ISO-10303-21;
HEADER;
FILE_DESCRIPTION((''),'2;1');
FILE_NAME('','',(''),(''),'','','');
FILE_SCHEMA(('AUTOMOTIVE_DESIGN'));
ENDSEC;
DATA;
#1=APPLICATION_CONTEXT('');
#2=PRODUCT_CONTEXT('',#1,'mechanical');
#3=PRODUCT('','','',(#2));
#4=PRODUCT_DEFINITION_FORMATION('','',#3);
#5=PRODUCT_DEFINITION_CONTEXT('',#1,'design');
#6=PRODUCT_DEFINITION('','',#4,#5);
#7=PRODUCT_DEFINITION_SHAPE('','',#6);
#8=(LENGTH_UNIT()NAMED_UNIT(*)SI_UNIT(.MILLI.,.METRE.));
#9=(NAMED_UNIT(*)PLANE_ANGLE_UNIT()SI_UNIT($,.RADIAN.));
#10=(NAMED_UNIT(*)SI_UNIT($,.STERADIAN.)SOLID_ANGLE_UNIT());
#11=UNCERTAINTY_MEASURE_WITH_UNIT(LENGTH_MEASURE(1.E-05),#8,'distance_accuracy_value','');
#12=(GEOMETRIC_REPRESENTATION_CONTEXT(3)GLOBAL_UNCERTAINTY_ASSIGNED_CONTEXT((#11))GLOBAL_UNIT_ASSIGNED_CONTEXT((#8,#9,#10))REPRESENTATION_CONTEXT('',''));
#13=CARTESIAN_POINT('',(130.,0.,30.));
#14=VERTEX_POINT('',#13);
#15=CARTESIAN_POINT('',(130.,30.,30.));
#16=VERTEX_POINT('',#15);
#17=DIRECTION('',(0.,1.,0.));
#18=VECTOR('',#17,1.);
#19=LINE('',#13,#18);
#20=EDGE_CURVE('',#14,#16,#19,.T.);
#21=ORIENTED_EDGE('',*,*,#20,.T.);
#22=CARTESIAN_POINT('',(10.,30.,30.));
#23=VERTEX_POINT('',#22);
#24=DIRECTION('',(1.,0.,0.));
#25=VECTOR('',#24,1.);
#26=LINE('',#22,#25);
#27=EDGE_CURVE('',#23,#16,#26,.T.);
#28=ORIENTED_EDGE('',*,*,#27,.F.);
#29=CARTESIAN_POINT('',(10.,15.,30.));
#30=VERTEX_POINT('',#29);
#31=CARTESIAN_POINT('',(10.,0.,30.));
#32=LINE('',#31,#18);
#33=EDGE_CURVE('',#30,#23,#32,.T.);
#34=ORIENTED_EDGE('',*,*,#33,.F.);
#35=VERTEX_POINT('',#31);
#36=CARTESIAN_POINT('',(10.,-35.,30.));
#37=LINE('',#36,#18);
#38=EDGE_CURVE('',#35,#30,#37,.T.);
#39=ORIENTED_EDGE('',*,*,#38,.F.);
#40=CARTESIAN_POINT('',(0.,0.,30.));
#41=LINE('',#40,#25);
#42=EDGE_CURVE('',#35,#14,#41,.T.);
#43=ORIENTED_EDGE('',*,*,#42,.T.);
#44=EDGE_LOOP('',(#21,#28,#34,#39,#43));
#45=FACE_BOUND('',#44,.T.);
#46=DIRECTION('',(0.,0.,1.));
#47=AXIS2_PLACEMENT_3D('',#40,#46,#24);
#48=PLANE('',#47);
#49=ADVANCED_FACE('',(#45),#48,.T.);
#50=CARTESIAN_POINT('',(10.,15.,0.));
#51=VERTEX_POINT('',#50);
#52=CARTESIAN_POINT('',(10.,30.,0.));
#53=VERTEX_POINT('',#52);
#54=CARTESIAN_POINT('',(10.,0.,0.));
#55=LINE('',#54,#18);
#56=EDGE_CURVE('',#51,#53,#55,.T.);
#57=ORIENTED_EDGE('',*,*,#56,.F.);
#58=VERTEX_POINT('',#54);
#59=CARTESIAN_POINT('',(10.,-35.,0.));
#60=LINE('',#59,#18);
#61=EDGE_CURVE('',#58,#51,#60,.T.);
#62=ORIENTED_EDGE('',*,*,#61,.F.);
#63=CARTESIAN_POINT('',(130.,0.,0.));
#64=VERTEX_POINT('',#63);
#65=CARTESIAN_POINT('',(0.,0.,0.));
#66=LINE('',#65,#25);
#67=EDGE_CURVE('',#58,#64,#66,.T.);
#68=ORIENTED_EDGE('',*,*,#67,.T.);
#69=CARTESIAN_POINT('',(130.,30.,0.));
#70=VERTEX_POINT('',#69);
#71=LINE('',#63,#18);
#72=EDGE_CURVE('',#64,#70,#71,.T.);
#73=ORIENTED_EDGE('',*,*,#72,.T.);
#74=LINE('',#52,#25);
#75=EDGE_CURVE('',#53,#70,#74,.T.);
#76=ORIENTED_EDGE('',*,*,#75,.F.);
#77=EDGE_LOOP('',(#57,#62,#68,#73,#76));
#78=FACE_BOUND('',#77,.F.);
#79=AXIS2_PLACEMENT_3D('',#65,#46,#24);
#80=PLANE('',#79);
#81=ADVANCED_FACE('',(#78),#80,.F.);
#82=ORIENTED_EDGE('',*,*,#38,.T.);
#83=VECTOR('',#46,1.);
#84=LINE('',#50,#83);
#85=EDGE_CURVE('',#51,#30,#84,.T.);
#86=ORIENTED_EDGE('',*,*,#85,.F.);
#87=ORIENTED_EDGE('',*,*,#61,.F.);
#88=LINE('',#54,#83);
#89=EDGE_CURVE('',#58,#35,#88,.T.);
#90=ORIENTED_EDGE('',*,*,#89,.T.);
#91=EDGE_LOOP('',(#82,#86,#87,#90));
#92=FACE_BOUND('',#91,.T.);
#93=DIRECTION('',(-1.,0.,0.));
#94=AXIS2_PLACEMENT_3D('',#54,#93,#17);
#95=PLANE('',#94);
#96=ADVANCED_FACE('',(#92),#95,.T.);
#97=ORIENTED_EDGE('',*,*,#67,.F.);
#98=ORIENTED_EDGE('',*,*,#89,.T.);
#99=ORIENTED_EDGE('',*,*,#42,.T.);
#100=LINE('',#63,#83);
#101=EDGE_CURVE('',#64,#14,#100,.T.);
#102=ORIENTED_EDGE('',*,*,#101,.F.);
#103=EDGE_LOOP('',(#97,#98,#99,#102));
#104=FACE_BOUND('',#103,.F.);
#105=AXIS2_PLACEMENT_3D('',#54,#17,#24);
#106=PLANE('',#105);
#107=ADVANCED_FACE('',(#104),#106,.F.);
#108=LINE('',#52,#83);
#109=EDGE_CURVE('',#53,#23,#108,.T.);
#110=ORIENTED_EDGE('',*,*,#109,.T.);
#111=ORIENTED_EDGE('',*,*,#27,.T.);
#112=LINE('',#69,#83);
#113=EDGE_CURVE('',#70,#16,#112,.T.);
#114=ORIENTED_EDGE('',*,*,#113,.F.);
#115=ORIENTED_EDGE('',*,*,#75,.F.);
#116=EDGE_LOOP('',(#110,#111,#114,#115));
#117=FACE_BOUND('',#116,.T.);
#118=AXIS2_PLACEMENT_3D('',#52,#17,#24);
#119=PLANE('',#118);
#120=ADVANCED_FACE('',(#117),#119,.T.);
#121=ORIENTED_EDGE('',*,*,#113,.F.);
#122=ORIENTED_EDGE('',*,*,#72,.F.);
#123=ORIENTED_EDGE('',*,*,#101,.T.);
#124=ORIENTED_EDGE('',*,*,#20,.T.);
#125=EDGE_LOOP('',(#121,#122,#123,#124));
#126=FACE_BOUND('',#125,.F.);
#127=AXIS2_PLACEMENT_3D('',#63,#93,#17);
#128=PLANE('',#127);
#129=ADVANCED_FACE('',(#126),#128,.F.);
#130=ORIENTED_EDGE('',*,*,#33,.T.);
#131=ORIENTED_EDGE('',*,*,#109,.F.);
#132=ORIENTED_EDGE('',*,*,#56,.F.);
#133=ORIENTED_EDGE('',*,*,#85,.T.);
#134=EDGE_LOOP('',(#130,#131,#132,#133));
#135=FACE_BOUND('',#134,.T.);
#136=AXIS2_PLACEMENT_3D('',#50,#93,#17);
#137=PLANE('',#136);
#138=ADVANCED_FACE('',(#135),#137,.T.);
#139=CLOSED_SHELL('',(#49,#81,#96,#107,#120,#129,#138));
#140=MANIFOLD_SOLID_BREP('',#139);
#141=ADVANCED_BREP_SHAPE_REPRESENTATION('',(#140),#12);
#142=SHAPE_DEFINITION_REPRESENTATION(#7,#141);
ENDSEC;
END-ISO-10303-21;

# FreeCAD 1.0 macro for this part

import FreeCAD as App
import Part
import Sketcher
Q = App.Units.Quantity


def add_polygon(sketch, points):
    """Adds a closed chain of lines whose ends are joined by coincident constraints."""
    first, n = sketch.GeometryCount, len(points)
    for a, b in zip(points, points[1:] + points[:1]):
        sketch.addGeometry(Part.LineSegment(App.Vector(*a, 0), App.Vector(*b, 0)), False)
    for i in range(n):
        sketch.addConstraint(Sketcher.Constraint("Coincident", first + i, 2, first + (i + 1) % n, 1))

doc = App.newDocument("Part")
params = doc.addObject("Spreadsheet::Sheet", "Params")
for row, (alias, value) in enumerate([
    ("sketch1_height", "30 mm"),
    ("sketch1_width", "120 mm"),
    ("pad1_length", "30 mm"),
], start=1):
    params.set(f"A{row}", alias)
    params.set(f"B{row}", "=" + value)
    params.setAlias(f"B{row}", alias)

body = doc.addObject("PartDesign::Body", "Body")

# Sketch on XY plane
sketch1 = body.newObject("Sketcher::SketchObject", "Sketch")
sketch1.AttachmentSupport = (doc.getObject("XY_Plane"), [""])
sketch1.MapMode = "FlatFace"
add_polygon(sketch1, [(10, 30), (10, 0), (130, 0), (130, 30)])  # lines 0-3
sketch1.addConstraint(Sketcher.Constraint("Vertical", 0))
sketch1.addConstraint(Sketcher.Constraint("Horizontal", 1))
sketch1.addConstraint(Sketcher.Constraint("Vertical", 2))
sketch1.addConstraint(Sketcher.Constraint("Horizontal", 3))
sketch1.addConstraint(Sketcher.Constraint("PointOnObject", 0, 2, -1))
sketch1.addConstraint(Sketcher.Constraint("DistanceY", 0, 2, 0, 1, Q("30 mm")))
sketch1.addConstraint(Sketcher.Constraint("DistanceX", 1, 1, 1, 2, Q("120 mm")))
sketch1.addConstraint(Sketcher.Constraint("DistanceX", -1, 1, 0, 2, Q("10 mm")))
sketch1.setExpression("Constraints[9]", "Params.sketch1_height")
sketch1.setExpression("Constraints[10]", "Params.sketch1_width")
pad1 = body.newObject("PartDesign::Pad", "Pad")
pad1.Profile = sketch1
pad1.setExpression("Length", "Params.pad1_length")

doc.recompute()
